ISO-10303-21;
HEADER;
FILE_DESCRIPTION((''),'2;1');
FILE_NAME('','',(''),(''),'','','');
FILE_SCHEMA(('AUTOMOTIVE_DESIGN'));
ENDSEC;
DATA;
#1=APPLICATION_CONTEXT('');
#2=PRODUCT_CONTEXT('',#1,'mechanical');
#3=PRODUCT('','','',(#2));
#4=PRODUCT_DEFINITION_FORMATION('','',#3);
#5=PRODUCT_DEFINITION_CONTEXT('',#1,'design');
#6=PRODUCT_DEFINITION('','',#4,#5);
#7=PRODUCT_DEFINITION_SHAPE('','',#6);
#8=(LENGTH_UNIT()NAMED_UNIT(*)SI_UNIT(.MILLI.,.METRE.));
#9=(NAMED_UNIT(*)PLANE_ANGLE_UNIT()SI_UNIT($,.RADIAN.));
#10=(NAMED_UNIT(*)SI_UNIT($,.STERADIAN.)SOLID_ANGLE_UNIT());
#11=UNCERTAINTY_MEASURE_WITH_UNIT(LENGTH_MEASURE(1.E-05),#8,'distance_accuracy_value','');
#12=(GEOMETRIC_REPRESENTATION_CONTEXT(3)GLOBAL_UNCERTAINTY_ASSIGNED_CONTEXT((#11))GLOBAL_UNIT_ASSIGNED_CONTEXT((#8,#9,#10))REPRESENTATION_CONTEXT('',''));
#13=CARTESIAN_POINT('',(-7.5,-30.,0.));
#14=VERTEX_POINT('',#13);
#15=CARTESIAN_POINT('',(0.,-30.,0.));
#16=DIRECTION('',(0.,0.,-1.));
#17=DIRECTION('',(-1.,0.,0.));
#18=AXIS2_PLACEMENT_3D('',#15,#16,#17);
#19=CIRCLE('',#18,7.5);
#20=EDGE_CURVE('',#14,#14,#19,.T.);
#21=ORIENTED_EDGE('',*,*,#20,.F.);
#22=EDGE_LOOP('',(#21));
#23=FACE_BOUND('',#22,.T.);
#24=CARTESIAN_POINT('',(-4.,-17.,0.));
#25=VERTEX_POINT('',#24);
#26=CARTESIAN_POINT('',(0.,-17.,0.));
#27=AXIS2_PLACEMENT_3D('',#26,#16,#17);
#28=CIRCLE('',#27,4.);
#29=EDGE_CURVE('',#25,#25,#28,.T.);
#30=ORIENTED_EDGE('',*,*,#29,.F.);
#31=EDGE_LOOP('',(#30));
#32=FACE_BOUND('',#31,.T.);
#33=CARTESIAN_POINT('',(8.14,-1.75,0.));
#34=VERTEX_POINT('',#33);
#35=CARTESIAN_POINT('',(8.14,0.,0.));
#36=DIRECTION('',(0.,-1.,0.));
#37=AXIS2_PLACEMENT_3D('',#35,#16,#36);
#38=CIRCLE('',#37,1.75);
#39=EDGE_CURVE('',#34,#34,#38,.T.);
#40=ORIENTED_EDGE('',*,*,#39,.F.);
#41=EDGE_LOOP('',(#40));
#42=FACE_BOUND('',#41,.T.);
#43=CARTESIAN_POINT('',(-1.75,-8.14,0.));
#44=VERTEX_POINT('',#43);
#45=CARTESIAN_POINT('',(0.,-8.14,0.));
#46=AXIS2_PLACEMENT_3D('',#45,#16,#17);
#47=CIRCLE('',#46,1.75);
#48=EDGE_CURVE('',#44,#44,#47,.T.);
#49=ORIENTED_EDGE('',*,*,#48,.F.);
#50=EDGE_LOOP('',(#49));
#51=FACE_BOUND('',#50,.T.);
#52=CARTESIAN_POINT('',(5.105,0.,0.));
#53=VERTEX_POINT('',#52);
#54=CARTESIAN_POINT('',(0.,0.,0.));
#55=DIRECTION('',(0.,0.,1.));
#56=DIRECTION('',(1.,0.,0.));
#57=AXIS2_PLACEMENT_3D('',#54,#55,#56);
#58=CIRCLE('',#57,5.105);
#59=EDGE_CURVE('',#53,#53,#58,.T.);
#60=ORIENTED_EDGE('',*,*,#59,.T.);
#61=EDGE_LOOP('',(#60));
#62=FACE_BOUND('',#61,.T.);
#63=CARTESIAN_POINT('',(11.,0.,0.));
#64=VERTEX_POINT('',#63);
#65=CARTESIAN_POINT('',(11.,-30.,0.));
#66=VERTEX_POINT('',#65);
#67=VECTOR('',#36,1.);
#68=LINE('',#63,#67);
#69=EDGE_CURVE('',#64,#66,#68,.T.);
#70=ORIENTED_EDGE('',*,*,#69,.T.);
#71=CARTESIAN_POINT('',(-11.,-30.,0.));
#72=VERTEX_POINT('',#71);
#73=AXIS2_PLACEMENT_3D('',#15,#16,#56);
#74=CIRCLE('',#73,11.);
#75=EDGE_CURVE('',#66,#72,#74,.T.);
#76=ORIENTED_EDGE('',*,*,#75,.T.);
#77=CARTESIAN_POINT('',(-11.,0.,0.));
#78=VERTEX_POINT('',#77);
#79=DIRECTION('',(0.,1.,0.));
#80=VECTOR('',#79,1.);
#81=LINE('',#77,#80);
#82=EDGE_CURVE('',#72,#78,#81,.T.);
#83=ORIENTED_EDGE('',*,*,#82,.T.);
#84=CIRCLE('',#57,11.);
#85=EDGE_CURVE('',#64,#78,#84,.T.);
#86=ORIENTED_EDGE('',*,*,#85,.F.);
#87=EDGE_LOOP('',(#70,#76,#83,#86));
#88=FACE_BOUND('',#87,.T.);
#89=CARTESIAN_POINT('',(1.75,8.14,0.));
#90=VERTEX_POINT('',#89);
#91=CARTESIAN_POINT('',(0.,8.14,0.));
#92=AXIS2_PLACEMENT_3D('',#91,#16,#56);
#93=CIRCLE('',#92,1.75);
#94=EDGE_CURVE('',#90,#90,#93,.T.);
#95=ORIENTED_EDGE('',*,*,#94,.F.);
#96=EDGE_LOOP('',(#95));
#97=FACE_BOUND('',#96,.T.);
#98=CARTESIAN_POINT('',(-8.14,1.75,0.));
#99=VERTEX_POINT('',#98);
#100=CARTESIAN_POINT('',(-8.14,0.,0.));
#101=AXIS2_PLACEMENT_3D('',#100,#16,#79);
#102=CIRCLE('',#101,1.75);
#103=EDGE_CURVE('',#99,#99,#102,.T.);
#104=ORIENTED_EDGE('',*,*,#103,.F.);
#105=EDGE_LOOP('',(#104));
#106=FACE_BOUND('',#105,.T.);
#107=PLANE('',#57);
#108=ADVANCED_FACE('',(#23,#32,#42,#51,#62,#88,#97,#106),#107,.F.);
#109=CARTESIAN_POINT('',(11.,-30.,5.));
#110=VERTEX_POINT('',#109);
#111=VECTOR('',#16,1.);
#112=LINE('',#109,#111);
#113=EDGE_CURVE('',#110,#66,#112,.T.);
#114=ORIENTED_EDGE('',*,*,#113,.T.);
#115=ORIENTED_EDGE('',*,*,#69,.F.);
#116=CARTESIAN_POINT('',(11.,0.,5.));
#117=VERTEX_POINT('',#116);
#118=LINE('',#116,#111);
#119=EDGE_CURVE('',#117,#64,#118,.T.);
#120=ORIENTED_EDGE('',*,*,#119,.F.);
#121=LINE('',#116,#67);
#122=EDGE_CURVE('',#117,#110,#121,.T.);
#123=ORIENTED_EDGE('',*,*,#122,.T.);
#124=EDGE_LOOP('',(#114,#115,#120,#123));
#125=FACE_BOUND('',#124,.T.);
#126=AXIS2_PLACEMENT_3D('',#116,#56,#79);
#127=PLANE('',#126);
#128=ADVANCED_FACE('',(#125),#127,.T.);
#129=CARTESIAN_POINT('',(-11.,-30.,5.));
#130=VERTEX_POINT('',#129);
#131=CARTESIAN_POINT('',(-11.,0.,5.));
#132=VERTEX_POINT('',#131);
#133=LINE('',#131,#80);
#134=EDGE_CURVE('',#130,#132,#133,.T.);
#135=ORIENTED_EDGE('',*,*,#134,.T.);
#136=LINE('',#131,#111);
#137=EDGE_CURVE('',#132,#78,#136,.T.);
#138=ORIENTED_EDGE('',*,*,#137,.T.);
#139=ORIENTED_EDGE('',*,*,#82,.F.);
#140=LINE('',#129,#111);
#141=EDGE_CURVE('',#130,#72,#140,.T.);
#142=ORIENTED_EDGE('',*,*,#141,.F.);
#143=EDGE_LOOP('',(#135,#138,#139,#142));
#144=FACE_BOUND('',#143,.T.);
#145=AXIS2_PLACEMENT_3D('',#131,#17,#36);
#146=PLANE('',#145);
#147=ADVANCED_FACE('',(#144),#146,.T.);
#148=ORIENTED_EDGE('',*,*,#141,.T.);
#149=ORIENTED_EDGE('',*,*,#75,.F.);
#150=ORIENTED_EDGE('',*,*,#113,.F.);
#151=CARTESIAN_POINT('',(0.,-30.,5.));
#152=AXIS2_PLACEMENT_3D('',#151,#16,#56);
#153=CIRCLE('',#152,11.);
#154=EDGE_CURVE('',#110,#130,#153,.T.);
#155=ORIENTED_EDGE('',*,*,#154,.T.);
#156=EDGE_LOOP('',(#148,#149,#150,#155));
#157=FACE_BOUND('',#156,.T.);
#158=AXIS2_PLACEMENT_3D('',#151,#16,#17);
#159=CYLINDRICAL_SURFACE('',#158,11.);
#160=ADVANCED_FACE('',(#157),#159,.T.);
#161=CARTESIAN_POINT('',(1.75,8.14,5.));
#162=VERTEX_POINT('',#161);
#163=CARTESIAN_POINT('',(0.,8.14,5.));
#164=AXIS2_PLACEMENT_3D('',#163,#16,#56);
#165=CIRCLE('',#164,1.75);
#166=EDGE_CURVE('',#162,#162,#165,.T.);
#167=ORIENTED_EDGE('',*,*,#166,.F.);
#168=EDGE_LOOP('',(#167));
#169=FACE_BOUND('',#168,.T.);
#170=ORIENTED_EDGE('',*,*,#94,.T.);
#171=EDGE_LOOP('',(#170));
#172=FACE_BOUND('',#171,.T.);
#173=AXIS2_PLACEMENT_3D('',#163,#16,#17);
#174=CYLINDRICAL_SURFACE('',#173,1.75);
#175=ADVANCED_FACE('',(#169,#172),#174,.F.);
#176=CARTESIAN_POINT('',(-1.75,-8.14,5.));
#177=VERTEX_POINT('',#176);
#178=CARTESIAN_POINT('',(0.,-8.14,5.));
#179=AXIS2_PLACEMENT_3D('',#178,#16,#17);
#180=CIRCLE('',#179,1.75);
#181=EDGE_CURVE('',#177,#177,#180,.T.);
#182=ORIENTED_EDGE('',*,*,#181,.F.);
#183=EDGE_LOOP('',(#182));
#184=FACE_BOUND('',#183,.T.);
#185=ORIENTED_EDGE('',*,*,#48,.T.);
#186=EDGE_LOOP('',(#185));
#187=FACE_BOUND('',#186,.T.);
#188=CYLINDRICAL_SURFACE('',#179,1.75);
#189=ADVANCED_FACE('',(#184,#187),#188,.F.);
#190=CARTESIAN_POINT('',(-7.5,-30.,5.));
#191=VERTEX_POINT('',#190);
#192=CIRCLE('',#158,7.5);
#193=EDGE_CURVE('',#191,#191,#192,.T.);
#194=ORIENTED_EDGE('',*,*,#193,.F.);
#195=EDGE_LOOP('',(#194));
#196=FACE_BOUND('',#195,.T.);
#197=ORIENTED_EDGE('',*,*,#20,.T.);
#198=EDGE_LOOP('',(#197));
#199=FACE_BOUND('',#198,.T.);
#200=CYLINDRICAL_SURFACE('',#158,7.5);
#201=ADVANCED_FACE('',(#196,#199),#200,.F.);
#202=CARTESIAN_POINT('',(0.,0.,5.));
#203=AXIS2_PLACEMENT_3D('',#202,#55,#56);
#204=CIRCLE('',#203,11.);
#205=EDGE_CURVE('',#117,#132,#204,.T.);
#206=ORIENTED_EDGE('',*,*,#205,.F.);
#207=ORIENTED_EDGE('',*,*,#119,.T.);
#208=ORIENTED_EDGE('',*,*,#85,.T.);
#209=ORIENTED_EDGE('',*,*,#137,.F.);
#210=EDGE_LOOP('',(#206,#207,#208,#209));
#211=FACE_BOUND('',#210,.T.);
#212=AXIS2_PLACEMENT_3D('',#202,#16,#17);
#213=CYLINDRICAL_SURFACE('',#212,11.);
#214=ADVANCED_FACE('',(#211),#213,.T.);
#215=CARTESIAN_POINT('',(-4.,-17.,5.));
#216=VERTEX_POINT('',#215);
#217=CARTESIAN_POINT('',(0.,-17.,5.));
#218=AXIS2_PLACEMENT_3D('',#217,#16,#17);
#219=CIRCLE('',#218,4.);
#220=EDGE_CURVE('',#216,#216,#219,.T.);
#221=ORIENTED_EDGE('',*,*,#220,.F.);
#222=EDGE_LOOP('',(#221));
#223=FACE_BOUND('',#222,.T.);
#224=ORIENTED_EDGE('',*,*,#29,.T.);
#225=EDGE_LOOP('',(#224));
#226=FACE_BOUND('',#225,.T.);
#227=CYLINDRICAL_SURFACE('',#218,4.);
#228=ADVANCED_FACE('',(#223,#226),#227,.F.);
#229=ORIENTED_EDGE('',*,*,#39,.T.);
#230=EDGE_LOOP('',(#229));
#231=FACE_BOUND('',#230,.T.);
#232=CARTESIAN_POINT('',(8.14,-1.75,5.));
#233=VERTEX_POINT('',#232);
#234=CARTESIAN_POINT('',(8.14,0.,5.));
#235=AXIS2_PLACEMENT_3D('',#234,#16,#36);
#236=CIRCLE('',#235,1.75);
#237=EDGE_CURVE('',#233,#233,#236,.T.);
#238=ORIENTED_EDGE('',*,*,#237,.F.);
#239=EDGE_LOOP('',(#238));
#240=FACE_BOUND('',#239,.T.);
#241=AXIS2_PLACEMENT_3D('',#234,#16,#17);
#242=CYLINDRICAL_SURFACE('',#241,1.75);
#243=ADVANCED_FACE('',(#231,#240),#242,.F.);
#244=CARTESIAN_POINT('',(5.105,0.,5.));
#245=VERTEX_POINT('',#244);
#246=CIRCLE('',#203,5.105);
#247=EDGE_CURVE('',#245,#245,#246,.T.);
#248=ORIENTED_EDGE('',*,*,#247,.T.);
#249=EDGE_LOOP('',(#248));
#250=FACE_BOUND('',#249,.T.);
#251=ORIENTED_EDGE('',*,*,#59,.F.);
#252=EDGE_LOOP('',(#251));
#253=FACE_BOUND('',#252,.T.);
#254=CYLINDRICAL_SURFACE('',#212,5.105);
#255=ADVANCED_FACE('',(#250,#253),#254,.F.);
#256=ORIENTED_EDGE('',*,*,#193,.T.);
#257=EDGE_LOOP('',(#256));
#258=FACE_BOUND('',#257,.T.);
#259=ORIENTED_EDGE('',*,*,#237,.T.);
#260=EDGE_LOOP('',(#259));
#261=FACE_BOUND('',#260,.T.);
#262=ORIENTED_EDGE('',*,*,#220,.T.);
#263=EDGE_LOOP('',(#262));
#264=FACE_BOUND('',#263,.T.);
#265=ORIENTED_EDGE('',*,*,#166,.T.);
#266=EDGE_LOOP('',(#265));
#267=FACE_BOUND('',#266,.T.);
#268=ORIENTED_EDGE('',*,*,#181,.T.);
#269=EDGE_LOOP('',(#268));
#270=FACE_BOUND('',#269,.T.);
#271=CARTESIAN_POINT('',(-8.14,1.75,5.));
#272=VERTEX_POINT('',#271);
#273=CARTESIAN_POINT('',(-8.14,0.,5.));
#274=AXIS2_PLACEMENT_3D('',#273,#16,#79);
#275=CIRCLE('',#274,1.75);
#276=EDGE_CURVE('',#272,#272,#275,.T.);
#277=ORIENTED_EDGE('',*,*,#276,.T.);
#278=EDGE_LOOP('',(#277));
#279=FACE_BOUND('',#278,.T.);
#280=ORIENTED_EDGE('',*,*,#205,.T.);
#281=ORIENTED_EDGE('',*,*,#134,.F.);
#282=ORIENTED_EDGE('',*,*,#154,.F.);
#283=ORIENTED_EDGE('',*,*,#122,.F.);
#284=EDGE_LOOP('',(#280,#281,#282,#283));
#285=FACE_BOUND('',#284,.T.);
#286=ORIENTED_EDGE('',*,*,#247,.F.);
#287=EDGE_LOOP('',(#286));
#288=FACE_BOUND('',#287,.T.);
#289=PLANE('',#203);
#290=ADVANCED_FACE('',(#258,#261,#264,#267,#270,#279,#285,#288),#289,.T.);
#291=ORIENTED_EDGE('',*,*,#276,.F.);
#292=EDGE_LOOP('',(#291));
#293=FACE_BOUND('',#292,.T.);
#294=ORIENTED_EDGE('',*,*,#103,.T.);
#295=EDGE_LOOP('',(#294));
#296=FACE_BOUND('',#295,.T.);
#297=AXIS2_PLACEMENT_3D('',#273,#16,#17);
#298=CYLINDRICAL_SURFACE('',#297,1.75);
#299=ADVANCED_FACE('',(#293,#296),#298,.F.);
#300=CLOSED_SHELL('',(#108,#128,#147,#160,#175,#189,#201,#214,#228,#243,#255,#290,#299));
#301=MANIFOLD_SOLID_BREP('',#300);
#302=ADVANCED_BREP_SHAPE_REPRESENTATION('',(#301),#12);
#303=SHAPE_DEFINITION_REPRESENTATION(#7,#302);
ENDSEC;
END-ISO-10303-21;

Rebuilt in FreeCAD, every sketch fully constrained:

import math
import FreeCAD as App
import Part
import Sketcher
Q = App.Units.Quantity

doc = App.newDocument("Part")
params = doc.addObject("Spreadsheet::Sheet", "Params")
for row, (alias, value) in enumerate([
    ("sketch1_diameter", "22 mm"),
    ("sketch1_diameter2", "10.21 mm"),
    ("pad1_length", "5 mm"),
    ("sketch2_diameter", "3.5 mm"),
    ("pocket1_length", "5 mm"),
    ("sketch3_diameter", "15 mm"),
    ("sketch3_diameter2", "8 mm"),
    ("sketch3_radius", "11 mm"),
    ("sketch3_height", "30 mm"),
    ("pad2_length", "5 mm"),
], start=1):
    params.set(f"A{row}", alias)
    params.set(f"B{row}", "=" + value)
    params.setAlias(f"B{row}", alias)

body = doc.addObject("PartDesign::Body", "Body")

sketch1 = body.newObject("Sketcher::SketchObject", "Sketch")
sketch1.AttachmentSupport = (doc.getObject("XY_Plane"), [""])
sketch1.MapMode = "FlatFace"
sketch1.addGeometry(Part.Circle(App.Vector(0, 0, 0), App.Vector(0, 0, 1), 11), False)
sketch1.addGeometry(Part.Circle(App.Vector(0, 0, 0), App.Vector(0, 0, 1), 5), False)
sketch1.addConstraint(Sketcher.Constraint("Coincident", 0, 3, -1, 1))
sketch1.addConstraint(Sketcher.Constraint("Coincident", 1, 3, -1, 1))
sketch1.addConstraint(Sketcher.Constraint("Diameter", 0, Q("22 mm")))
sketch1.addConstraint(Sketcher.Constraint("Diameter", 1, Q("10.21 mm")))
sketch1.setExpression("Constraints[2]", "Params.sketch1_diameter")
sketch1.setExpression("Constraints[3]", "Params.sketch1_diameter2")
pad1 = body.newObject("PartDesign::Pad", "Pad")
pad1.Profile = sketch1
pad1.setExpression("Length", "Params.pad1_length")

sketch2 = body.newObject("Sketcher::SketchObject", "Sketch001")
sketch2.AttachmentSupport = (doc.getObject("XY_Plane"), [""])
sketch2.MapMode = "FlatFace"
sketch2.addGeometry(Part.Circle(App.Vector(0, -8.1, 0), App.Vector(0, 0, 1), 1.8), False)
sketch2.addConstraint(Sketcher.Constraint("PointOnObject", 0, 3, -2))
sketch2.addConstraint(Sketcher.Constraint("Diameter", 0, Q("3.5 mm")))
sketch2.addConstraint(Sketcher.Constraint("DistanceY", 0, 3, -1, 1, Q("8.14 mm")))
sketch2.setExpression("Constraints[1]", "Params.sketch2_diameter")
pocket1 = body.newObject("PartDesign::Pocket", "Pocket")
pocket1.Profile = sketch2
pocket1.setExpression("Length", "Params.pocket1_length")
pocket1.Reversed = True
doc.recompute()

polarpattern = body.newObject("PartDesign::PolarPattern", "PolarPattern")
polarpattern.Originals = [pocket1]
polarpattern.Axis = (doc.getObject("Z_Axis"), [""])
polarpattern.Angle = 360
polarpattern.Occurrences = 4
body.Tip = polarpattern

sketch3 = body.newObject("Sketcher::SketchObject", "Sketch002")
sketch3.AttachmentSupport = (doc.getObject("XY_Plane"), [""])
sketch3.MapMode = "FlatFace"
sketch3.addGeometry(Part.LineSegment(App.Vector(11, 0, 0), App.Vector(11, -30, 0)), False)
sketch3.addGeometry(Part.ArcOfCircle(Part.Circle(App.Vector(0, -30, 0), App.Vector(0, 0, 1), 11), math.radians(180), math.radians(360)), False)
sketch3.addGeometry(Part.LineSegment(App.Vector(-11, -30, 0), App.Vector(-11, 0, 0)), False)
sketch3.addGeometry(Part.ArcOfCircle(Part.Circle(App.Vector(0, 0, 0), App.Vector(0, 0, 1), 11), math.radians(180), math.radians(360)), False)
sketch3.addGeometry(Part.Circle(App.Vector(0, -30, 0), App.Vector(0, 0, 1), 7.5), False)
sketch3.addGeometry(Part.Circle(App.Vector(0, -17, 0), App.Vector(0, 0, 1), 4), False)
sketch3.addConstraint(Sketcher.Constraint("Tangent", 0, 2, 1, 2))
sketch3.addConstraint(Sketcher.Constraint("Tangent", 1, 1, 2, 1))
sketch3.addConstraint(Sketcher.Constraint("Tangent", 2, 2, 3, 1))
sketch3.addConstraint(Sketcher.Constraint("Tangent", 3, 2, 0, 1))
sketch3.addConstraint(Sketcher.Constraint("Vertical", 0))
sketch3.addConstraint(Sketcher.Constraint("Vertical", 2))
sketch3.addConstraint(Sketcher.Constraint("Coincident", 3, 3, -1, 1))
sketch3.addConstraint(Sketcher.Constraint("Coincident", 4, 3, 1, 3))
sketch3.addConstraint(Sketcher.Constraint("PointOnObject", 5, 3, -2))
sketch3.addConstraint(Sketcher.Constraint("Diameter", 4, Q("15 mm")))
sketch3.addConstraint(Sketcher.Constraint("Diameter", 5, Q("8 mm")))
sketch3.addConstraint(Sketcher.Constraint("Radius", 1, Q("11 mm")))
sketch3.addConstraint(Sketcher.Constraint("DistanceY", 0, 2, 0, 1, Q("30 mm")))
sketch3.addConstraint(Sketcher.Constraint("DistanceY", 5, 3, -1, 1, Q("17 mm")))
sketch3.setExpression("Constraints[9]", "Params.sketch3_diameter")
sketch3.setExpression("Constraints[10]", "Params.sketch3_diameter2")
sketch3.setExpression("Constraints[11]", "Params.sketch3_radius")
sketch3.setExpression("Constraints[12]", "Params.sketch3_height")
pad2 = body.newObject("PartDesign::Pad", "Pad001")
pad2.Profile = sketch3
pad2.setExpression("Length", "Params.pad2_length")

doc.recompute()
